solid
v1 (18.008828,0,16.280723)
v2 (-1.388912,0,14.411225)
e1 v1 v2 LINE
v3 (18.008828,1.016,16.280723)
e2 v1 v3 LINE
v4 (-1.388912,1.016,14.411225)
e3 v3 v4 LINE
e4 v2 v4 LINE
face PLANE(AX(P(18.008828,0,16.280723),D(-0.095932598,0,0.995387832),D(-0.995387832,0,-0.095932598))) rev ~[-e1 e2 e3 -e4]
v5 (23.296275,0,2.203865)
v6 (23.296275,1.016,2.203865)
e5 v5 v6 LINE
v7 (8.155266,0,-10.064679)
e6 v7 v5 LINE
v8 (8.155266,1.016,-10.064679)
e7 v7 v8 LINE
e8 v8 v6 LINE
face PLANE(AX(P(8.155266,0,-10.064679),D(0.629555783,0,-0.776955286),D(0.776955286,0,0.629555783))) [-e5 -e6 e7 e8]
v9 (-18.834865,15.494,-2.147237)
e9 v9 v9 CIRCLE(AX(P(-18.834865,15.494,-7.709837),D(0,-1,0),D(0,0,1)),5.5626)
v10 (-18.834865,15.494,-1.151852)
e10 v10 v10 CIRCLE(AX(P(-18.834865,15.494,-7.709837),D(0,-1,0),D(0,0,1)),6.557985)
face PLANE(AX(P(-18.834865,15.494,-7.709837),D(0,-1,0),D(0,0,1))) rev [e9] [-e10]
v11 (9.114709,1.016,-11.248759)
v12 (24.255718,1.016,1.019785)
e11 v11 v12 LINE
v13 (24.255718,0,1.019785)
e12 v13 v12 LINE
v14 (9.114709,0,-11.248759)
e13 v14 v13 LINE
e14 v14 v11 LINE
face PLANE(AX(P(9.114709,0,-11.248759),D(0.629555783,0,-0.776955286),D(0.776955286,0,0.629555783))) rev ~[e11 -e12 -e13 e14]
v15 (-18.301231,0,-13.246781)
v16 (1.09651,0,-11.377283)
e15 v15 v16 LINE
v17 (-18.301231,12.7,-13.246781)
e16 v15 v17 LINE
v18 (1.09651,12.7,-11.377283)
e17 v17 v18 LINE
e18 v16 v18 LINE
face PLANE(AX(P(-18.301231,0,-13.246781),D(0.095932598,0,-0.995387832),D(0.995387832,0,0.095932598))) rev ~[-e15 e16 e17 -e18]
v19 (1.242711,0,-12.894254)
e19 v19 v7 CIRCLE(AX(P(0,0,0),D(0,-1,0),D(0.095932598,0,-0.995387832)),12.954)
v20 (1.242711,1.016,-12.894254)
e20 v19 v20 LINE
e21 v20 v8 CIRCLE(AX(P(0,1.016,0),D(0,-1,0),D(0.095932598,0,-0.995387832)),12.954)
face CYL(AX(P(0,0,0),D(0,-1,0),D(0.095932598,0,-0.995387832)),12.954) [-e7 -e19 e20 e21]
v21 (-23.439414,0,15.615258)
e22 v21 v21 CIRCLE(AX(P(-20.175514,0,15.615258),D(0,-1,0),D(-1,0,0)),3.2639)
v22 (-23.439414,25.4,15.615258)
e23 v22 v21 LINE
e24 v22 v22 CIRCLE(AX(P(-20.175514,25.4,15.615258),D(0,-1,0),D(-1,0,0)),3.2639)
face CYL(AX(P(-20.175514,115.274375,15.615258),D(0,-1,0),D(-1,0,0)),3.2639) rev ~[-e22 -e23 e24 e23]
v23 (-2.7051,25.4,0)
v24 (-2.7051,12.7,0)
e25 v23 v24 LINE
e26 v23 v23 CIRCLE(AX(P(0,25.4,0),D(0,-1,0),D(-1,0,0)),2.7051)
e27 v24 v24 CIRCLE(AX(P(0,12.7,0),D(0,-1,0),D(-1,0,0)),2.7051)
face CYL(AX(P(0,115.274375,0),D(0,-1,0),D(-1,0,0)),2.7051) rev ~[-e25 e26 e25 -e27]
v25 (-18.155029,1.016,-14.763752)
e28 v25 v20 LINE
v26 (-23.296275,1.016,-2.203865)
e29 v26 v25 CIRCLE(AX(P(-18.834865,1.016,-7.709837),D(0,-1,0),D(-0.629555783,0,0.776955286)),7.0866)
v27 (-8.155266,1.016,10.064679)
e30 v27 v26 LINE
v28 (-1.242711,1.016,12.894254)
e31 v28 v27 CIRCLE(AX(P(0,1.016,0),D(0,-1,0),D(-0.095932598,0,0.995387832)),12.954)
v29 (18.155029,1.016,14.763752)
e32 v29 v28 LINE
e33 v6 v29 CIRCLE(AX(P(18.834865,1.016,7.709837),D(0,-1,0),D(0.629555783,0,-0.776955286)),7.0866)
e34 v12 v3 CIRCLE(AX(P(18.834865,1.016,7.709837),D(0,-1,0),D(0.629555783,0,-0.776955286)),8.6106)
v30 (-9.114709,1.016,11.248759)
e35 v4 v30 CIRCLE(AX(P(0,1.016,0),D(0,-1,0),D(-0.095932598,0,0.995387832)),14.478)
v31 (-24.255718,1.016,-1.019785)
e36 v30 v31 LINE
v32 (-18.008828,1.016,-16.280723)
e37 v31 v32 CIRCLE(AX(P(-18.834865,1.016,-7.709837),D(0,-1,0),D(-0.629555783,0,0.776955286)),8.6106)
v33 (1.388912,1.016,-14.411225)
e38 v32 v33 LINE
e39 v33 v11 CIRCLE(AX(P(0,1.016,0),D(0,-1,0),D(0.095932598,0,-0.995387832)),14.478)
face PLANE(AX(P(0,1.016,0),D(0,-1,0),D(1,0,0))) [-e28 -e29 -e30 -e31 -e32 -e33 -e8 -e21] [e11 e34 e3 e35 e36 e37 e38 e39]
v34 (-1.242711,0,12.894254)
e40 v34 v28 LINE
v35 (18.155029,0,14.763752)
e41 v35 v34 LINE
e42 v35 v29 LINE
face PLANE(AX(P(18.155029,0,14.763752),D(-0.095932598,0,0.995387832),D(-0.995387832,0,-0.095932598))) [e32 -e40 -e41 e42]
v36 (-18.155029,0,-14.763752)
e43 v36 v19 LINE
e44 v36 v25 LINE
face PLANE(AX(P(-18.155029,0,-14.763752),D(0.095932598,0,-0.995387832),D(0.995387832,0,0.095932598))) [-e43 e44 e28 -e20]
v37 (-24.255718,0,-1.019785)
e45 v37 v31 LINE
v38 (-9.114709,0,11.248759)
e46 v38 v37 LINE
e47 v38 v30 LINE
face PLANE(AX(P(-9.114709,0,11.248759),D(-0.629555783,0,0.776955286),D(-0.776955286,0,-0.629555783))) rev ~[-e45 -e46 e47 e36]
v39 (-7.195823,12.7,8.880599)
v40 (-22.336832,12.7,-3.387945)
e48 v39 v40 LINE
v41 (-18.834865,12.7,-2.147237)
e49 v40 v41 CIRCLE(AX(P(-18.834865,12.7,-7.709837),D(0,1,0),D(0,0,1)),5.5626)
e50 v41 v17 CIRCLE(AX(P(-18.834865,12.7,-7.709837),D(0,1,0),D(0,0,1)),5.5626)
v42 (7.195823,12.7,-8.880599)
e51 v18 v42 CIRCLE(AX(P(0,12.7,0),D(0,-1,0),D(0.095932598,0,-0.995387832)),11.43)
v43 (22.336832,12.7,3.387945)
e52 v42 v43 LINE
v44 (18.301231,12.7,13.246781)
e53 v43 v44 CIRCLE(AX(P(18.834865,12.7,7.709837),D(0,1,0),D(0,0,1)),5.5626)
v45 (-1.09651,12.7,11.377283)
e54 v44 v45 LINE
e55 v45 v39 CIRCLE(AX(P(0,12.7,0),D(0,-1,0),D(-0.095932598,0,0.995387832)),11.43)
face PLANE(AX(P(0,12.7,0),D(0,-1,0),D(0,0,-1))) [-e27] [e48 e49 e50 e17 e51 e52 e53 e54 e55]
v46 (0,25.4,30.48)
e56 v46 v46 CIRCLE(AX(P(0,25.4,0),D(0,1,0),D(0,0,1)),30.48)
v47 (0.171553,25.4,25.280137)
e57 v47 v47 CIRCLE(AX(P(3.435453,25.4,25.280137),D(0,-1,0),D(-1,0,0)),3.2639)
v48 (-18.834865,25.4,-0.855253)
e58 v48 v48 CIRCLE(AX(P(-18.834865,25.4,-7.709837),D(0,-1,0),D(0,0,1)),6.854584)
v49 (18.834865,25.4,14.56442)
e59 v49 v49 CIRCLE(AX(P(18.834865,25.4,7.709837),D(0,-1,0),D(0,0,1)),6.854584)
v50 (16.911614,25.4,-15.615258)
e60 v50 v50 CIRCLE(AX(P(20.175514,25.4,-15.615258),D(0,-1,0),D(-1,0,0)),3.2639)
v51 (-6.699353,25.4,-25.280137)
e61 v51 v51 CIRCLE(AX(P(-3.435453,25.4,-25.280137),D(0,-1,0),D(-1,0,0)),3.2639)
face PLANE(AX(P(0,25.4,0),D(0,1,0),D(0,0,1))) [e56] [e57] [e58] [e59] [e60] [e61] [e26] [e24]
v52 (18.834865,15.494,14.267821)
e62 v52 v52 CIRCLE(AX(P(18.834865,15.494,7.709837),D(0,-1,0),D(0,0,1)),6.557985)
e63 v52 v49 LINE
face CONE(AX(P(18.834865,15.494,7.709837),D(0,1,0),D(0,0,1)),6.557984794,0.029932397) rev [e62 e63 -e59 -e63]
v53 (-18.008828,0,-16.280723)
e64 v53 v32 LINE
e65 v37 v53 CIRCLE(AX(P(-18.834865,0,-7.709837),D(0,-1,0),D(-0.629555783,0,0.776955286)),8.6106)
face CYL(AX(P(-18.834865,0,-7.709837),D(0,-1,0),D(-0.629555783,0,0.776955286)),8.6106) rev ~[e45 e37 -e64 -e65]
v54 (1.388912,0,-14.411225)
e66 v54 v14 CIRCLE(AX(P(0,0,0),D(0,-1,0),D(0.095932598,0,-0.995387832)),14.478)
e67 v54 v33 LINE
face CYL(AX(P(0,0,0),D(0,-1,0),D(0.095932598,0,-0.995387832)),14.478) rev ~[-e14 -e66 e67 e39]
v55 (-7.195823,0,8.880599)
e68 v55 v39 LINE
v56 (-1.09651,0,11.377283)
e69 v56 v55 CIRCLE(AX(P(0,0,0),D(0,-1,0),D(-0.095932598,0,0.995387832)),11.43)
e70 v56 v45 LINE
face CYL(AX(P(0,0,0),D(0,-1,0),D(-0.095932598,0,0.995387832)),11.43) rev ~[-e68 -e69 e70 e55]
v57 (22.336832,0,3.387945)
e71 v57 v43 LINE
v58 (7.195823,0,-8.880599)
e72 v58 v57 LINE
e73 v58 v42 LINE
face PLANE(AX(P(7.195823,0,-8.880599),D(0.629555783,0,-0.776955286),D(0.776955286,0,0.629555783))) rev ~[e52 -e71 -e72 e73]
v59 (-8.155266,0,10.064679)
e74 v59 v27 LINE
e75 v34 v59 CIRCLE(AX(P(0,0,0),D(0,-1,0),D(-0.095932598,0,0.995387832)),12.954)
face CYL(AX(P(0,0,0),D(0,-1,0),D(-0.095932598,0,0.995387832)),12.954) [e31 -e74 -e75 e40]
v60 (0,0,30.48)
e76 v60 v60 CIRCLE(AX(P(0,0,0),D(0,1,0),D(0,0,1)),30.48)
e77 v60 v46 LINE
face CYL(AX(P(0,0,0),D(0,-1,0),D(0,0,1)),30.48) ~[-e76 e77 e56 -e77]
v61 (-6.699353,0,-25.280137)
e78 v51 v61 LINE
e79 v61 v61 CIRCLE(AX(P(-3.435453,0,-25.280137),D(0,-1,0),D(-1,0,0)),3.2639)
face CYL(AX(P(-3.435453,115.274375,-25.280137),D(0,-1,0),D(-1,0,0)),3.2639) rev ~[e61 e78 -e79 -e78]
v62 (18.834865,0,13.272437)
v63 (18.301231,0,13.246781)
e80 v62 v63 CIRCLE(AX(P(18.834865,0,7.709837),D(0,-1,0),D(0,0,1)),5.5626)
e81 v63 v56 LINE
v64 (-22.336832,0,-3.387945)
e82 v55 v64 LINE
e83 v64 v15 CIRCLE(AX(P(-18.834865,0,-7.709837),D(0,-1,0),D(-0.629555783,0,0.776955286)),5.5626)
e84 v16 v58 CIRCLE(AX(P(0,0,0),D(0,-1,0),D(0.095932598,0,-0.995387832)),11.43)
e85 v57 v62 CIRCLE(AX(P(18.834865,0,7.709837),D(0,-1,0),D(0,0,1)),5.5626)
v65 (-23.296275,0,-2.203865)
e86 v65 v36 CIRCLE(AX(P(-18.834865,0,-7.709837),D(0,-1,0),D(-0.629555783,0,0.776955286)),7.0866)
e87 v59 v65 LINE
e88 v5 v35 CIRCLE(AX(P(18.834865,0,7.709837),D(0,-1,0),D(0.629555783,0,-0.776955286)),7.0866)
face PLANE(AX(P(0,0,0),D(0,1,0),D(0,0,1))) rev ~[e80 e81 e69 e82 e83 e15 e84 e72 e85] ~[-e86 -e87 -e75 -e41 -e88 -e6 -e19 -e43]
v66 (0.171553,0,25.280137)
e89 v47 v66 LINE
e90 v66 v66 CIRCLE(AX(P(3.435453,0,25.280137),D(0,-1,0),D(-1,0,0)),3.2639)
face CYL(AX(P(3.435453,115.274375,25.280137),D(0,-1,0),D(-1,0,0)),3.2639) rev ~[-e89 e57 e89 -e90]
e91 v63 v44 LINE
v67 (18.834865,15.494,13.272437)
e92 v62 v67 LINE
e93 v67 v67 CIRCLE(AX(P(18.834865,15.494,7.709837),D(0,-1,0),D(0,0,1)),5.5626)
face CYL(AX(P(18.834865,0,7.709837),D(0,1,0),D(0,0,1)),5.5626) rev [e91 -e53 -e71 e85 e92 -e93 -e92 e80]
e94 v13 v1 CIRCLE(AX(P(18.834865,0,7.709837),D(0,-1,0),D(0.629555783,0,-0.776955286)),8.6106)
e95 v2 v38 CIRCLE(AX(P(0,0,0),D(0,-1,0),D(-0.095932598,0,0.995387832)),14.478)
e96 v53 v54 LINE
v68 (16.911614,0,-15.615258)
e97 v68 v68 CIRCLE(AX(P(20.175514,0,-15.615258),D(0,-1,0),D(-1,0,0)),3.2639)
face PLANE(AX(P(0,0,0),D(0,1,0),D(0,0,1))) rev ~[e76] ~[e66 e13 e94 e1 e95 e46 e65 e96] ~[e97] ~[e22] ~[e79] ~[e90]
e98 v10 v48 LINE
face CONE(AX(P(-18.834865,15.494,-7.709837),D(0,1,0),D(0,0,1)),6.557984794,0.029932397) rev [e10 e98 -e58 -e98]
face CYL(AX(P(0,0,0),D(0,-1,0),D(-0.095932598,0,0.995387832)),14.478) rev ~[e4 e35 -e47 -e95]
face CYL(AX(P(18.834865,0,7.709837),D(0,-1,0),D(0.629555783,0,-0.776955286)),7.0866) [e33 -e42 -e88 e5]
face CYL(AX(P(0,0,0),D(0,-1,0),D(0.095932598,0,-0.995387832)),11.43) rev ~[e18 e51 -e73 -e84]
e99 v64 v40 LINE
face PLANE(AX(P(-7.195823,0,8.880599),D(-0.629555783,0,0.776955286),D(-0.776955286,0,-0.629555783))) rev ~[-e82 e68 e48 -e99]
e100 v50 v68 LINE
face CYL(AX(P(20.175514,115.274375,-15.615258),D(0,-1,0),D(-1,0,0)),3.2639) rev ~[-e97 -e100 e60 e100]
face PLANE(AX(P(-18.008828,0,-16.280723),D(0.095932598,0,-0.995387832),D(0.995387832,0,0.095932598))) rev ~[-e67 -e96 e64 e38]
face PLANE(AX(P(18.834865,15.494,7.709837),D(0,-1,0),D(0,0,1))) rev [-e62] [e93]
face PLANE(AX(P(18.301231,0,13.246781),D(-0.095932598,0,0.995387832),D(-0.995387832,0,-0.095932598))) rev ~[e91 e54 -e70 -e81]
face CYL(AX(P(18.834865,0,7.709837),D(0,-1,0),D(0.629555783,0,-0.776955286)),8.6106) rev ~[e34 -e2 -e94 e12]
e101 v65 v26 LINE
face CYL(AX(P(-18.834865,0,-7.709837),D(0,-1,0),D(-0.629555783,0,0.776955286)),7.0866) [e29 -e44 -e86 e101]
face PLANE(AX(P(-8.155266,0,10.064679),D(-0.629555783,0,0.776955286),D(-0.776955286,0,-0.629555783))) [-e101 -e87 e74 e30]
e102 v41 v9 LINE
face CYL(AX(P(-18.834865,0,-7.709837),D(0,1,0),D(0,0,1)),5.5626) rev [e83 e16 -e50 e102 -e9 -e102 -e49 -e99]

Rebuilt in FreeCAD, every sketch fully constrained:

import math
import FreeCAD as App
import Part
import Sketcher
Q = App.Units.Quantity


def add_polygon(sketch, points):
    """Adds a closed chain of lines whose ends are joined by coincident constraints."""
    first, n = sketch.GeometryCount, len(points)
    for a, b in zip(points, points[1:] + points[:1]):
        sketch.addGeometry(Part.LineSegment(App.Vector(*a, 0), App.Vector(*b, 0)), False)
    for i in range(n):
        sketch.addConstraint(Sketcher.Constraint("Coincident", first + i, 2, first + (i + 1) % n, 1))

doc = App.newDocument("Part")
body = doc.addObject("PartDesign::Body", "Body")

sketch1 = body.newObject("Sketcher::SketchObject", "Sketch")
sketch1.AttachmentSupport = (doc.getObject("XZ_Plane"), [""])
sketch1.MapMode = "FlatFace"
sketch1.addGeometry(Part.Circle(App.Vector(0, 0, 0), App.Vector(0, 0, 1), 30.48), False)
sketch1.addConstraint(Sketcher.Constraint("Coincident", 0, 3, -1, 1))
sketch1.addConstraint(Sketcher.Constraint("Diameter", 0, Q("2.4 in")))
pad1 = body.newObject("PartDesign::Pad", "Pad")
pad1.Profile = sketch1
pad1.Length = Q("1 in")
pad1.Reversed = True

sketch2 = body.newObject("Sketcher::SketchObject", "Sketch001")
sketch2.AttachmentSupport = (doc.getObject("XZ_Plane"), [""])
sketch2.MapMode = "FlatFace"
sketch2.AttachmentOffset = App.Placement(App.Vector(0, 0, -1 * 25.4), App.Rotation())
sketch2.addGeometry(Part.Circle(App.Vector(0, 0, 0), App.Vector(0, 0, 1), 2.7051), False)
sketch2.addConstraint(Sketcher.Constraint("Coincident", 0, 3, -1, 1))
sketch2.addConstraint(Sketcher.Constraint("Diameter", 0, Q("0.213 in")))
doc.recompute()
hole = body.newObject("PartDesign::Hole", "Hole")
hole.Profile = sketch2
hole.ThreadType = "None"
hole.Diameter = Q("0.213 in")
hole.DepthType = "ThroughAll"
hole.Reversed = True

sketch3 = body.newObject("Sketcher::SketchObject", "Sketch002")
sketch3.AttachmentSupport = (doc.getObject("XZ_Plane"), [""])
sketch3.MapMode = "FlatFace"
sketch3.addGeometry(Part.Circle(App.Vector(0, 0, 0), App.Vector(0, 0, 1), 11.43), False)
sketch3.addConstraint(Sketcher.Constraint("Coincident", 0, 3, -1, 1))
sketch3.addConstraint(Sketcher.Constraint("Diameter", 0, Q("0.9 in")))
pocket1 = body.newObject("PartDesign::Pocket", "Pocket")
pocket1.Profile = sketch3
pocket1.Length = Q("0.5 in")

sketch4 = body.newObject("Sketcher::SketchObject", "Sketch003")
sketch4.AttachmentSupport = (doc.getObject("XZ_Plane"), [""])
sketch4.MapMode = "FlatFace"
sketch4.AttachmentOffset = App.Placement(App.Vector(0, 0, -1 * 25.4), App.Rotation())
sketch4.addGeometry(Part.Circle(App.Vector(20.175514, -15.615258, 0), App.Vector(0, 0, 1), 3.2639), False)
sketch4.addGeometry(Part.Circle(App.Vector(3.435453, 25.280137, 0), App.Vector(0, 0, 1), 3.2639), False)
sketch4.addGeometry(Part.Circle(App.Vector(-3.435453, -25.280137, 0), App.Vector(0, 0, 1), 3.2639), False)
sketch4.addGeometry(Part.Circle(App.Vector(-20.175514, 15.615258, 0), App.Vector(0, 0, 1), 3.2639), False)
sketch4.addConstraint(Sketcher.Constraint("Equal", 0, 1))
sketch4.addConstraint(Sketcher.Constraint("Equal", 1, 2))
sketch4.addConstraint(Sketcher.Constraint("Equal", 2, 3))
sketch4.addConstraint(Sketcher.Constraint("Symmetric", 1, 3, 2, 3, -1, 1))
sketch4.addConstraint(Sketcher.Constraint("Symmetric", 0, 3, 3, 3, -1, 1))
sketch4.addConstraint(Sketcher.Constraint("Diameter", 0, Q("0.257 in")))
sketch4.addConstraint(Sketcher.Constraint("DistanceX", 1, 3, 0, 3, Q("16.740062 mm")))
sketch4.addConstraint(Sketcher.Constraint("DistanceY", 2, 3, 0, 3, Q("9.664879 mm")))
sketch4.addConstraint(Sketcher.Constraint("DistanceX", 3, 3, 0, 3, Q("40.351029 mm")))
sketch4.addConstraint(Sketcher.Constraint("DistanceY", 0, 3, -1, 1, Q("15.615258 mm")))
doc.recompute()
hole2 = body.newObject("PartDesign::Hole", "Hole001")
hole2.Profile = sketch4
hole2.ThreadType = "None"
hole2.Diameter = Q("0.257 in")
hole2.DepthType = "ThroughAll"
hole2.Reversed = True

sketch5 = body.newObject("Sketcher::SketchObject", "Sketch004")
sketch5.AttachmentSupport = (doc.getObject("YZ_Plane"), [""])
sketch5.MapMode = "FlatFace"
sketch5.AttachmentOffset = App.Placement(App.Vector(0, 0, -18.834865), App.Rotation())
add_polygon(sketch5, [(0, -7.709837), (25.4, -7.709837), (25.4, -0.855253), (15.494, -1.151852), (15.494, -2.147237), (0, -2.147237)])
sketch5.addGeometry(Part.LineSegment(App.Vector(25.4, -7.709837, 0), App.Vector(0, -7.709837, 0)), True)
sketch5.addConstraint(Sketcher.Constraint("Horizontal", 0))
sketch5.addConstraint(Sketcher.Constraint("Vertical", 1))
sketch5.addConstraint(Sketcher.Constraint("Vertical", 3))
sketch5.addConstraint(Sketcher.Constraint("Horizontal", 4))
sketch5.addConstraint(Sketcher.Constraint("Vertical", 5))
sketch5.addConstraint(Sketcher.Constraint("Horizontal", 6))
sketch5.addConstraint(Sketcher.Constraint("Coincident", 6, 1, 0, 2))
sketch5.addConstraint(Sketcher.Constraint("PointOnObject", 4, 2, -2))
sketch5.addConstraint(Sketcher.Constraint("PointOnObject", 6, 2, -2))
sketch5.addConstraint(Sketcher.Constraint("DistanceX", 0, 1, 0, 2, Q("1 in")))
sketch5.addConstraint(Sketcher.Constraint("DistanceX", 4, 2, 4, 1, Q("0.61 in")))
sketch5.addConstraint(Sketcher.Constraint("DistanceY", 5, 2, 5, 1, Q("0.219 in")))
sketch5.addConstraint(Sketcher.Constraint("DistanceY", 2, 2, 1, 2, Q("0.296599 mm")))
sketch5.addConstraint(Sketcher.Constraint("DistanceY", 1, 1, 1, 2, Q("6.854584 mm")))
sketch5.addConstraint(Sketcher.Constraint("DistanceY", 2, 2, -1, 1, Q("1.151852 mm")))
groove = body.newObject("PartDesign::Groove", "Groove")
groove.Profile = sketch5
groove.ReferenceAxis = (sketch5, ["Axis0"])
groove.Angle = 360
doc.recompute()

datumline = body.newObject("PartDesign::Line", "DatumLine")
datumline.Placement = App.Placement(App.Vector(0, 0, 0), App.Rotation(App.Vector(0, 0, 1), App.Vector(0.925466616, 0, 0.378829173)))
linearpattern = body.newObject("PartDesign::LinearPattern", "LinearPattern")
linearpattern.Originals = [groove]
linearpattern.Direction = (datumline, [""])
linearpattern.Mode = "offset"
linearpattern.Offset = Q("1.6025 in")
linearpattern.Occurrences = 2
body.Tip = linearpattern

sketch6 = body.newObject("Sketcher::SketchObject", "Sketch005")
sketch6.AttachmentSupport = (doc.getObject("XZ_Plane"), [""])
sketch6.MapMode = "FlatFace"
sketch6.addGeometry(Part.LineSegment(App.Vector(-7.195823, 8.880599, 0), App.Vector(-22.336832, -3.387945, 0)), False)
sketch6.addGeometry(Part.ArcOfCircle(Part.Circle(App.Vector(-18.834865, -7.709837, 0), App.Vector(0, 0, 1), 5.5626), math.radians(129.017357), math.radians(275.504999)), False)
sketch6.addGeometry(Part.LineSegment(App.Vector(-18.301231, -13.246781, 0), App.Vector(1.09651, -11.377283, 0)), False)
sketch6.addGeometry(Part.ArcOfCircle(Part.Circle(App.Vector(0, 0, 0), App.Vector(0, 0, 1), 11.43), math.radians(-84.495001), math.radians(-50.982643)), False)
sketch6.addGeometry(Part.LineSegment(App.Vector(7.195823, -8.880599, 0), App.Vector(22.336832, 3.387945, 0)), False)
sketch6.addGeometry(Part.ArcOfCircle(Part.Circle(App.Vector(18.834865, 7.709837, 0), App.Vector(0, 0, 1), 5.5626), math.radians(-50.982643), math.radians(95.504999)), False)
sketch6.addGeometry(Part.LineSegment(App.Vector(18.301231, 13.246781, 0), App.Vector(-1.09651, 11.377283, 0)), False)
sketch6.addGeometry(Part.ArcOfCircle(Part.Circle(App.Vector(0, 0, 0), App.Vector(0, 0, 1), 11.43), math.radians(95.504999), math.radians(129.017357)), False)
sketch6.addConstraint(Sketcher.Constraint("Tangent", 0, 2, 1, 1))
sketch6.addConstraint(Sketcher.Constraint("Tangent", 1, 2, 2, 1))
sketch6.addConstraint(Sketcher.Constraint("Tangent", 2, 2, 3, 1))
sketch6.addConstraint(Sketcher.Constraint("Tangent", 3, 2, 4, 1))
sketch6.addConstraint(Sketcher.Constraint("Tangent", 4, 2, 5, 1))
sketch6.addConstraint(Sketcher.Constraint("Tangent", 5, 2, 6, 1))
sketch6.addConstraint(Sketcher.Constraint("Tangent", 6, 2, 7, 1))
sketch6.addConstraint(Sketcher.Constraint("Tangent", 7, 2, 0, 1))
sketch6.addConstraint(Sketcher.Constraint("Coincident", 3, 3, -1, 1))
sketch6.addConstraint(Sketcher.Constraint("Coincident", 7, 3, -1, 1))
sketch6.addConstraint(Sketcher.Constraint("Equal", 1, 5))
sketch6.addConstraint(Sketcher.Constraint("Equal", 3, 7))
sketch6.addConstraint(Sketcher.Constraint("Symmetric", 1, 3, 5, 3, -1, 1))
sketch6.addConstraint(Sketcher.Constraint("Radius", 3, Q("0.45 in")))
sketch6.addConstraint(Sketcher.Constraint("Radius", 1, Q("0.219 in")))
sketch6.addConstraint(Sketcher.Constraint("DistanceX", -1, 1, 3, 2, Q("0.2833001 in")))
sketch6.addConstraint(Sketcher.Constraint("DistanceX", 0, 2, 1, 2, Q("4.035602 mm")))
pocket2 = body.newObject("PartDesign::Pocket", "Pocket001")
pocket2.Profile = sketch6
pocket2.Length = Q("0.5 in")

sketch7 = body.newObject("Sketcher::SketchObject", "Sketch006")
sketch7.AttachmentSupport = (doc.getObject("XZ_Plane"), [""])
sketch7.MapMode = "FlatFace"
sketch7.addGeometry(Part.LineSegment(App.Vector(18.008828, 16.280723, 0), App.Vector(-1.388912, 14.411225, 0)), False)
sketch7.addGeometry(Part.ArcOfCircle(Part.Circle(App.Vector(0, 0, 0), App.Vector(0, 0, 1), 14.478), math.radians(95.504999), math.radians(129.017357)), False)
sketch7.addGeometry(Part.LineSegment(App.Vector(-9.114709, 11.248759, 0), App.Vector(-24.255718, -1.019785, 0)), False)
sketch7.addGeometry(Part.ArcOfCircle(Part.Circle(App.Vector(-18.834865, -7.709837, 0), App.Vector(0, 0, 1), 8.6106), math.radians(129.017357), math.radians(275.504999)), False)
sketch7.addGeometry(Part.LineSegment(App.Vector(-18.008828, -16.280723, 0), App.Vector(1.388912, -14.411225, 0)), False)
sketch7.addGeometry(Part.ArcOfCircle(Part.Circle(App.Vector(0, 0, 0), App.Vector(0, 0, 1), 14.478), math.radians(-84.495001), math.radians(-50.982643)), False)
sketch7.addGeometry(Part.LineSegment(App.Vector(9.114709, -11.248759, 0), App.Vector(24.255718, 1.019785, 0)), False)
sketch7.addGeometry(Part.ArcOfCircle(Part.Circle(App.Vector(18.834865, 7.709837, 0), App.Vector(0, 0, 1), 8.6106), math.radians(-50.982643), math.radians(95.504999)), False)
sketch7.addGeometry(Part.LineSegment(App.Vector(-1.242711, 12.894254, 0), App.Vector(18.155029, 14.763752, 0)), False)
sketch7.addGeometry(Part.ArcOfCircle(Part.Circle(App.Vector(18.834865, 7.709837, 0), App.Vector(0, 0, 1), 7.0866), math.radians(-50.982643), math.radians(95.504999)), False)
sketch7.addGeometry(Part.LineSegment(App.Vector(23.296275, 2.203865, 0), App.Vector(8.155266, -10.064679, 0)), False)
sketch7.addGeometry(Part.ArcOfCircle(Part.Circle(App.Vector(0, 0, 0), App.Vector(0, 0, 1), 12.954), math.radians(-84.495001), math.radians(-50.982643)), False)
sketch7.addGeometry(Part.LineSegment(App.Vector(1.242711, -12.894254, 0), App.Vector(-18.155029, -14.763752, 0)), False)
sketch7.addGeometry(Part.ArcOfCircle(Part.Circle(App.Vector(-18.834865, -7.709837, 0), App.Vector(0, 0, 1), 7.0866), math.radians(129.017357), math.radians(275.504999)), False)
sketch7.addGeometry(Part.LineSegment(App.Vector(-23.296275, -2.203865, 0), App.Vector(-8.155266, 10.064679, 0)), False)
sketch7.addGeometry(Part.ArcOfCircle(Part.Circle(App.Vector(0, 0, 0), App.Vector(0, 0, 1), 12.954), math.radians(95.504999), math.radians(129.017357)), False)
sketch7.addConstraint(Sketcher.Constraint("Tangent", 0, 2, 1, 1))
sketch7.addConstraint(Sketcher.Constraint("Tangent", 1, 2, 2, 1))
sketch7.addConstraint(Sketcher.Constraint("Tangent", 2, 2, 3, 1))
sketch7.addConstraint(Sketcher.Constraint("Tangent", 3, 2, 4, 1))
sketch7.addConstraint(Sketcher.Constraint("Tangent", 4, 2, 5, 1))
sketch7.addConstraint(Sketcher.Constraint("Tangent", 5, 2, 6, 1))
sketch7.addConstraint(Sketcher.Constraint("Tangent", 6, 2, 7, 1))
sketch7.addConstraint(Sketcher.Constraint("Tangent", 7, 2, 0, 1))
sketch7.addConstraint(Sketcher.Constraint("Tangent", 8, 2, 9, 2))
sketch7.addConstraint(Sketcher.Constraint("Tangent", 9, 1, 10, 1))
sketch7.addConstraint(Sketcher.Constraint("Tangent", 10, 2, 11, 2))
sketch7.addConstraint(Sketcher.Constraint("Tangent", 11, 1, 12, 1))
sketch7.addConstraint(Sketcher.Constraint("Tangent", 12, 2, 13, 2))
sketch7.addConstraint(Sketcher.Constraint("Tangent", 13, 1, 14, 1))
sketch7.addConstraint(Sketcher.Constraint("Tangent", 14, 2, 15, 2))
sketch7.addConstraint(Sketcher.Constraint("Tangent", 15, 1, 8, 1))
sketch7.addConstraint(Sketcher.Constraint("Coincident", 1, 3, -1, 1))
sketch7.addConstraint(Sketcher.Constraint("Coincident", 5, 3, -1, 1))
sketch7.addConstraint(Sketcher.Constraint("Coincident", 11, 3, -1, 1))
sketch7.addConstraint(Sketcher.Constraint("Coincident", 15, 3, -1, 1))
sketch7.addConstraint(Sketcher.Constraint("Coincident", 9, 3, 7, 3))
sketch7.addConstraint(Sketcher.Constraint("Coincident", 13, 3, 3, 3))
sketch7.addConstraint(Sketcher.Constraint("Equal", 1, 5))
sketch7.addConstraint(Sketcher.Constraint("Equal", 3, 7))
sketch7.addConstraint(Sketcher.Constraint("Equal", 9, 13))
sketch7.addConstraint(Sketcher.Constraint("Equal", 11, 15))
sketch7.addConstraint(Sketcher.Constraint("Symmetric", 3, 3, 7, 3, -1, 1))
sketch7.addConstraint(Sketcher.Constraint("Parallel", 4, 8))
sketch7.addConstraint(Sketcher.Constraint("Radius", 1, Q("0.57 in")))
sketch7.addConstraint(Sketcher.Constraint("Radius", 11, Q("0.51 in")))
sketch7.addConstraint(Sketcher.Constraint("Radius", 3, Q("0.339 in")))
sketch7.addConstraint(Sketcher.Constraint("DistanceY", 3, 2, 4, 2, Q("1.869498 mm")))
sketch7.addConstraint(Sketcher.Constraint("Distance", 0, Q("19.48762 mm")))
pocket3 = body.newObject("PartDesign::Pocket", "Pocket002")
pocket3.Profile = sketch7
pocket3.Length = Q("0.04 in")

doc.recompute()
